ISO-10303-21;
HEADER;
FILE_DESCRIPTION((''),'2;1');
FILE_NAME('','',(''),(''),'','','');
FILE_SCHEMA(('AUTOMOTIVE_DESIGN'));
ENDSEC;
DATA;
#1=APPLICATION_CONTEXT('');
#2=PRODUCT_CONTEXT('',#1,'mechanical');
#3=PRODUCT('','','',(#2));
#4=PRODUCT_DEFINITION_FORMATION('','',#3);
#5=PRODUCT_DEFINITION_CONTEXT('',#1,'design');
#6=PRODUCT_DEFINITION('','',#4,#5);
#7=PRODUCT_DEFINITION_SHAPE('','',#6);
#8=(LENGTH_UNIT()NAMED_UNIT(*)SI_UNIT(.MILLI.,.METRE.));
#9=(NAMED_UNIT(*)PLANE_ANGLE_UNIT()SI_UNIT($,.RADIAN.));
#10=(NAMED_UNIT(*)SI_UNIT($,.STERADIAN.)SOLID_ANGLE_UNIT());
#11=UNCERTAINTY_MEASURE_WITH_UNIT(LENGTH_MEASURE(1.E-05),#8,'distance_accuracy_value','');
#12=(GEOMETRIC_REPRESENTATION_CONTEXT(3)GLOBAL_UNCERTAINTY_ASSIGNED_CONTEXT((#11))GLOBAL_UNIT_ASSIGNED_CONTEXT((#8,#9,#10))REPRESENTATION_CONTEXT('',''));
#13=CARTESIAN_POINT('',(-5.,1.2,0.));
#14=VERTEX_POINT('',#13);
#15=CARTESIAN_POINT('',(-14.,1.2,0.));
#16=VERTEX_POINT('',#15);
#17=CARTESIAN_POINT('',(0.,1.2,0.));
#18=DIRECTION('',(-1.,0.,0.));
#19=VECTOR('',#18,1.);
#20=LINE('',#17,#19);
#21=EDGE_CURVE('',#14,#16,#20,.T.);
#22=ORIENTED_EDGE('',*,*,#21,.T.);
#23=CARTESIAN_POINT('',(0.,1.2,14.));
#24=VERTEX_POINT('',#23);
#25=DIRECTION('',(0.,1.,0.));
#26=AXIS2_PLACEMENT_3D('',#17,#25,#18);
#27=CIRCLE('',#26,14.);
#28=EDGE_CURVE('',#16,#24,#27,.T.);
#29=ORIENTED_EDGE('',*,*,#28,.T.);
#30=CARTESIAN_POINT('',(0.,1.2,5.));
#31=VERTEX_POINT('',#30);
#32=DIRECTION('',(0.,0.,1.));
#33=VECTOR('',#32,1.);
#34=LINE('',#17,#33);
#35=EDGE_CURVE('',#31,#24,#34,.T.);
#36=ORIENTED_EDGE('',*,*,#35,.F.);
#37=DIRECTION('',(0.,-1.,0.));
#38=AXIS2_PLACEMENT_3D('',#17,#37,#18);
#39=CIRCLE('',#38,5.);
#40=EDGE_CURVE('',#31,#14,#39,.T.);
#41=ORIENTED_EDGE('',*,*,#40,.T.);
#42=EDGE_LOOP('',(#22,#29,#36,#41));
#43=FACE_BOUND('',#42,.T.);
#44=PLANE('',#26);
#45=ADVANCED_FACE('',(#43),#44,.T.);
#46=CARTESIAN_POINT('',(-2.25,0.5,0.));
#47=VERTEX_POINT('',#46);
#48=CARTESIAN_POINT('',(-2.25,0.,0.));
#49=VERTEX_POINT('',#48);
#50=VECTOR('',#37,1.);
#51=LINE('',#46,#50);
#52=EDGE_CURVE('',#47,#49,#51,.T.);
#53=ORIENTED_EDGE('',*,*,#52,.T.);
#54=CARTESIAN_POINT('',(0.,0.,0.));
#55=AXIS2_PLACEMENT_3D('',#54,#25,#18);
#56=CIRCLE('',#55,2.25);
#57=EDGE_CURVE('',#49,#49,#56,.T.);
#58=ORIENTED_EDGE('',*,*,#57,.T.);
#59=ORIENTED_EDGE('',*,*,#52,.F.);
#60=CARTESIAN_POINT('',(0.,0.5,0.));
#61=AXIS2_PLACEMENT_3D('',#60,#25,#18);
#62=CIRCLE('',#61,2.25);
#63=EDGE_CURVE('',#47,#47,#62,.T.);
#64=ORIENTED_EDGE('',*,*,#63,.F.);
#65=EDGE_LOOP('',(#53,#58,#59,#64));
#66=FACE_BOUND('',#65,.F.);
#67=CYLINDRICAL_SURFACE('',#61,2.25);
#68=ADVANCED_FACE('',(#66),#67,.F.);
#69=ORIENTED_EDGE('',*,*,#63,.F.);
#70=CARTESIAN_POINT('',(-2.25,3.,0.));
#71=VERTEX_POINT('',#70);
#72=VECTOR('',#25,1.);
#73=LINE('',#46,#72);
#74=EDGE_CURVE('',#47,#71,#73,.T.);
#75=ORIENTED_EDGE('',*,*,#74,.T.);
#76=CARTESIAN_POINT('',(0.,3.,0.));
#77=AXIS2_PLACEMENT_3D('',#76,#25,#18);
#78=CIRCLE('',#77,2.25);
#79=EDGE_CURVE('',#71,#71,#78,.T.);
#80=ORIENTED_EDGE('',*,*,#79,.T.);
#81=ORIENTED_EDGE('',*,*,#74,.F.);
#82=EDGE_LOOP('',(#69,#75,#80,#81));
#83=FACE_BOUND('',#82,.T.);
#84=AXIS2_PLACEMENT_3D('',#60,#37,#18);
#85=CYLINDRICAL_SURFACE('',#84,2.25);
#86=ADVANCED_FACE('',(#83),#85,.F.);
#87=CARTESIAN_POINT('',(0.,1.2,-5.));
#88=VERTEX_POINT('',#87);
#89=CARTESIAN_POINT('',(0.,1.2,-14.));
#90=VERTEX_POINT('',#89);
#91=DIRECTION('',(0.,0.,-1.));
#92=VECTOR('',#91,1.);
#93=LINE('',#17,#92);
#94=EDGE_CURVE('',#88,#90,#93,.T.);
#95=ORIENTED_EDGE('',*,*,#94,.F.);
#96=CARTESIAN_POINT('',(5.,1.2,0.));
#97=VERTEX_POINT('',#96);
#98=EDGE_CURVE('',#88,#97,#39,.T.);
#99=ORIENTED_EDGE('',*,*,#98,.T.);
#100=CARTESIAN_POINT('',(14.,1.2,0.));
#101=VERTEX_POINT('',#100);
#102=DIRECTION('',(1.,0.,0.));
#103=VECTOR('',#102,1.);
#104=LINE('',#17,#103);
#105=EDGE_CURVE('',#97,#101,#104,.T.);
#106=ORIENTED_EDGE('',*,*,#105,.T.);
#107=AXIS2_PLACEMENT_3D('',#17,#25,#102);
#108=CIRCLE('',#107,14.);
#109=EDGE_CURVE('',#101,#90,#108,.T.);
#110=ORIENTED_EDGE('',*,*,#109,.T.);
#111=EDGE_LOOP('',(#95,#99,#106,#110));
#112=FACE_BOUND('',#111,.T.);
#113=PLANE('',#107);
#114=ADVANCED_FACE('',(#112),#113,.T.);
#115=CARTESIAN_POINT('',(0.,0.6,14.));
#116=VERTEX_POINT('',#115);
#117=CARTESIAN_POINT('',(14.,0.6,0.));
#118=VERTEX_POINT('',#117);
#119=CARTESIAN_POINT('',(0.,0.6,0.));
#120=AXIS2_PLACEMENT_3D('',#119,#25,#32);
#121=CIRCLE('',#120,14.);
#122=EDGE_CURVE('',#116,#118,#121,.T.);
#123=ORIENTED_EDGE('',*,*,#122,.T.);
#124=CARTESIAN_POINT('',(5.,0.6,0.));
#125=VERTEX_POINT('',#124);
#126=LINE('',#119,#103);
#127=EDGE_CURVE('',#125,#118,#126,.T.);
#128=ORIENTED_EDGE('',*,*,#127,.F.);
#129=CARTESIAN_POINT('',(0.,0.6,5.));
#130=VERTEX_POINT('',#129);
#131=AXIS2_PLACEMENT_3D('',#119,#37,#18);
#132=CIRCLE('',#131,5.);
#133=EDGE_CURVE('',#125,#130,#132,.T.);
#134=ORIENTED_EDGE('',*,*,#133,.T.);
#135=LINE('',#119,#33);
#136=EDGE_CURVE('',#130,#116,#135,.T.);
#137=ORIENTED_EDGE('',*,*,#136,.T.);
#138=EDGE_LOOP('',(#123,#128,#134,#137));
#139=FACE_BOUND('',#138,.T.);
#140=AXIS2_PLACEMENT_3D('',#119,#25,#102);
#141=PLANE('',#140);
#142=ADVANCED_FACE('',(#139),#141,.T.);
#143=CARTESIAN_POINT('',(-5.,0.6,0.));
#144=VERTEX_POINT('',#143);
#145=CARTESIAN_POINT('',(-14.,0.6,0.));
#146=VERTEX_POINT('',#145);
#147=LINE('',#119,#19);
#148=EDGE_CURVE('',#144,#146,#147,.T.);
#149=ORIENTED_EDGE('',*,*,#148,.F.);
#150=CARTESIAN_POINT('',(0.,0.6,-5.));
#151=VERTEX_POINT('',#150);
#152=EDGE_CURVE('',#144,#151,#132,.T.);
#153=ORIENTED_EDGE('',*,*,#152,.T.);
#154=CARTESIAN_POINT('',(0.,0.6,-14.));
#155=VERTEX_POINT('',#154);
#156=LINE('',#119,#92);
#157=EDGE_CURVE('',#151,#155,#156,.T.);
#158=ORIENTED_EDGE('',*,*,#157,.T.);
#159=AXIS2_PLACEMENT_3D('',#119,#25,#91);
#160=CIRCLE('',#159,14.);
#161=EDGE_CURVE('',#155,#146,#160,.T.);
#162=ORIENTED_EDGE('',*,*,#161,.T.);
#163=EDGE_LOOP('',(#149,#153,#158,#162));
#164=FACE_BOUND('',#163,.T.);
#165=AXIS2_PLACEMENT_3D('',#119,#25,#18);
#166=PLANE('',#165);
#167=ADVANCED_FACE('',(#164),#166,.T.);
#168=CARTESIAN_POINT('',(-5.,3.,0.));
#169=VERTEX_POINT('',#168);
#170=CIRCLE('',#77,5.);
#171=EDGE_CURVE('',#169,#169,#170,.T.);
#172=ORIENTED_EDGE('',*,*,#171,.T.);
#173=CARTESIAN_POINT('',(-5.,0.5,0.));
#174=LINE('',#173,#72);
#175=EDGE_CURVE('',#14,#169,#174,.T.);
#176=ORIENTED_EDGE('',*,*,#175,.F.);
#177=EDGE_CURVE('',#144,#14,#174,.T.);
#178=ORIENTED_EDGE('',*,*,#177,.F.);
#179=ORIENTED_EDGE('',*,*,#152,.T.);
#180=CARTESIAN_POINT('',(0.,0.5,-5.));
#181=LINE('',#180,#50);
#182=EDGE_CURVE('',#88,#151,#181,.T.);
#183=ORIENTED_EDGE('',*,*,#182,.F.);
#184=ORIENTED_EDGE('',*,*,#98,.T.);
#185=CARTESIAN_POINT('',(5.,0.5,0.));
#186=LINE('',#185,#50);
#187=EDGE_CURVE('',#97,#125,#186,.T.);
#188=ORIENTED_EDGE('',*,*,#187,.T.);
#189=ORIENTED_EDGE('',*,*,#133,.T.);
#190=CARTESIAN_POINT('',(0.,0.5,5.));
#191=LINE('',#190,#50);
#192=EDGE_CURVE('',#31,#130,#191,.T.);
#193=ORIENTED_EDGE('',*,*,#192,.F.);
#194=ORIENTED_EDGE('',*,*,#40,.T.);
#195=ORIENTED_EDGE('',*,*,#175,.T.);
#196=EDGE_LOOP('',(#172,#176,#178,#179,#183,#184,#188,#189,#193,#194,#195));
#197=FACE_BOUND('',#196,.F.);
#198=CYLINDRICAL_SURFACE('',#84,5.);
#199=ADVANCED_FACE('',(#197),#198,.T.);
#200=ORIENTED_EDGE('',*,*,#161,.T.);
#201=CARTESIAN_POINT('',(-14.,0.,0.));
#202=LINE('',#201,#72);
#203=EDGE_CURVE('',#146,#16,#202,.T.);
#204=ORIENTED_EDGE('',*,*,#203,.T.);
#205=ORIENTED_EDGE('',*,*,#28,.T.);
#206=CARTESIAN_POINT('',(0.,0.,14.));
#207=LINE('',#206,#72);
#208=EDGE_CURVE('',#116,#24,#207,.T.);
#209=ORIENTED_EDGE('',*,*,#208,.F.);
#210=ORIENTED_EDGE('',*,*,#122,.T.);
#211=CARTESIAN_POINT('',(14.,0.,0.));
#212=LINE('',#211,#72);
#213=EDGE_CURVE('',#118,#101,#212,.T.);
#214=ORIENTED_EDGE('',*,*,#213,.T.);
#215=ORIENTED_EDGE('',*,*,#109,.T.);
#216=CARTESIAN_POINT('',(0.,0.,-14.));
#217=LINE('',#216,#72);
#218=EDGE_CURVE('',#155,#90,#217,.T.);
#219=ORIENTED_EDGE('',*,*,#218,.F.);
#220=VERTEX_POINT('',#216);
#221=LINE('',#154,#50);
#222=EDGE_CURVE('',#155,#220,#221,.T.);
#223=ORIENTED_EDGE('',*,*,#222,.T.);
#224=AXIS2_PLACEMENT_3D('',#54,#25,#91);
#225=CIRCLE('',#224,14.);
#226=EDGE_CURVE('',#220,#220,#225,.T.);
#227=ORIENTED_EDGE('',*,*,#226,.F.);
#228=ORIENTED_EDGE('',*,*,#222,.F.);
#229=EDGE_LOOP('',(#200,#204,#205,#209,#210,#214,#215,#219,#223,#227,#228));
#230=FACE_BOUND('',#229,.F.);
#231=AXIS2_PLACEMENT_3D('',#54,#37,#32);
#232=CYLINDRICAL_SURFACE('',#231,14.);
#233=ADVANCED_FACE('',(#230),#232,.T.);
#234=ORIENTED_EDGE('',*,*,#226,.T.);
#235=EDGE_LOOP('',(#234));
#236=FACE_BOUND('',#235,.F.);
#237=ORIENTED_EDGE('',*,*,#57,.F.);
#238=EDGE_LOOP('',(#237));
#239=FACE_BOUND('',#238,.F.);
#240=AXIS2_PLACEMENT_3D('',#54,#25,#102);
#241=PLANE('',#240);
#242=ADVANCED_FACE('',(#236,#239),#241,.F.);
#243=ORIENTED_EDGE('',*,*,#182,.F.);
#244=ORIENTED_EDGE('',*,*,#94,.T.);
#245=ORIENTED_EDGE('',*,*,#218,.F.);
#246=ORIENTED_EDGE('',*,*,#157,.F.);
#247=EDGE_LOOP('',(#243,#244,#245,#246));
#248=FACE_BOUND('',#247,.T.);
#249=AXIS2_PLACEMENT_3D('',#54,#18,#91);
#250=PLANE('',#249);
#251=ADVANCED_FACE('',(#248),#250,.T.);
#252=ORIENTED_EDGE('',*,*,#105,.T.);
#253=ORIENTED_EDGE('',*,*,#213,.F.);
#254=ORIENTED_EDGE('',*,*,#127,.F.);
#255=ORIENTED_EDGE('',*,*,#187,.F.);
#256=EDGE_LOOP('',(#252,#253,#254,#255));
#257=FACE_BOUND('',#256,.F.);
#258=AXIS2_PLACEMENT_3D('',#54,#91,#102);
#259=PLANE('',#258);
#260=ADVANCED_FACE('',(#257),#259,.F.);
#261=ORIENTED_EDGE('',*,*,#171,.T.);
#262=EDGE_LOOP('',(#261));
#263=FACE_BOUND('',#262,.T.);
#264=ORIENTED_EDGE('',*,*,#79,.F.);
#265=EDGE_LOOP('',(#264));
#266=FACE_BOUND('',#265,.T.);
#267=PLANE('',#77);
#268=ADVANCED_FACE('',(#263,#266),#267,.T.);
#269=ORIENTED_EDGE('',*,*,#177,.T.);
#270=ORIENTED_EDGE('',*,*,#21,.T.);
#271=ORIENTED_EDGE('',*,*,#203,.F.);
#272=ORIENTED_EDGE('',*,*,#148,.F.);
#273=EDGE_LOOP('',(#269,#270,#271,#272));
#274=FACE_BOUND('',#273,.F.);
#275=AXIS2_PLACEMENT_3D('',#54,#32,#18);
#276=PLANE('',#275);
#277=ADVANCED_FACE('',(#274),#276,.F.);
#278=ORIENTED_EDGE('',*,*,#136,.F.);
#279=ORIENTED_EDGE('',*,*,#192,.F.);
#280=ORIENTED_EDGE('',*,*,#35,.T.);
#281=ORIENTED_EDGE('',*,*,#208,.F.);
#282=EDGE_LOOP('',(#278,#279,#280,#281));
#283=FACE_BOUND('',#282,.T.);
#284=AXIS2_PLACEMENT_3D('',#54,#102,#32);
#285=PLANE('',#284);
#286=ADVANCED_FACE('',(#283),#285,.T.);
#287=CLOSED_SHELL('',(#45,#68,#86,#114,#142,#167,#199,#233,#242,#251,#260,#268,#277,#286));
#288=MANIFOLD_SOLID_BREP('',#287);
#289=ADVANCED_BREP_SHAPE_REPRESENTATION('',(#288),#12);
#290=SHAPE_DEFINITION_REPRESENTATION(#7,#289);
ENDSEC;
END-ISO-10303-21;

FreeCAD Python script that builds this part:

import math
import FreeCAD as App
import Part
import Sketcher
Q = App.Units.Quantity

doc = App.newDocument("Part")
params = doc.addObject("Spreadsheet::Sheet", "Params")
for row, (alias, value) in enumerate([
    ("sketch1_diameter", "28 mm"),
    ("pad1_length", "0.5 mm"),
    ("sketch2_radius", "14 mm"),
    ("pad2_length", "1.2 mm"),
    ("sketch3_radius", "14 mm"),
    ("pad3_length", "0.6 mm"),
    ("sketch4_diameter", "10 mm"),
    ("pocket1_length", "2 mm"),
    ("sketch5_diameter", "4.5 mm"),
    ("pocket2_length", "5 mm"),
    ("sketch6_diameter", "10 mm"),
    ("sketch6_diameter2", "4.5 mm"),
    ("pad4_length", "2.5 mm"),
], start=1):
    params.set(f"A{row}", alias)
    params.set(f"B{row}", "=" + value)
    params.setAlias(f"B{row}", alias)

body = doc.addObject("PartDesign::Body", "Body")

# Sketch on XZ plane
sketch1 = body.newObject("Sketcher::SketchObject", "Sketch")
sketch1.AttachmentSupport = (doc.getObject("XZ_Plane"), [""])
sketch1.MapMode = "FlatFace"
sketch1.addGeometry(Part.Circle(App.Vector(0, 0, 0), App.Vector(0, 0, 1), 14), False)
sketch1.addConstraint([
    Sketcher.Constraint("Coincident", 0, 3, -1, 1),
    Sketcher.Constraint("Diameter", 0, Q("28 mm")),
])
sketch1.setExpression("Constraints[1]", "Params.sketch1_diameter")
pad1 = body.newObject("PartDesign::Pad", "Pad")
pad1.Profile = sketch1
pad1.setExpression("Length", "Params.pad1_length")
pad1.Reversed = True

# Sketch on XZ plane
sketch2 = body.newObject("Sketcher::SketchObject", "Sketch001")
sketch2.AttachmentSupport = (doc.getObject("XZ_Plane"), [""])
sketch2.MapMode = "FlatFace"
sketch2.addGeometry([
    Part.ArcOfCircle(Part.Circle(App.Vector(0, 0, 0), App.Vector(0, 0, 1), 14), math.radians(90), math.radians(180)),
    Part.LineSegment(App.Vector(0, 14, 0), App.Vector(0, 0, 0)),
    Part.LineSegment(App.Vector(0, 0, 0), App.Vector(-14, 0, 0)),
], False)
sketch2.addConstraint([
    Sketcher.Constraint("Coincident", 0, 1, 1, 1),
    Sketcher.Constraint("Coincident", 1, 2, 2, 1),
    Sketcher.Constraint("Coincident", 2, 2, 0, 2),
    Sketcher.Constraint("Vertical", 1),
    Sketcher.Constraint("Horizontal", 2),
    Sketcher.Constraint("Coincident", 0, 3, -1, 1),
    Sketcher.Constraint("Coincident", 1, 2, -1, 1),
    Sketcher.Constraint("Radius", 0, Q("14 mm")),
])
sketch2.setExpression("Constraints[7]", "Params.sketch2_radius")
pad2 = body.newObject("PartDesign::Pad", "Pad001")
pad2.Profile = sketch2
pad2.setExpression("Length", "Params.pad2_length")
pad2.Reversed = True

# Sketch on XZ plane
sketch3 = body.newObject("Sketcher::SketchObject", "Sketch002")
sketch3.AttachmentSupport = (doc.getObject("XZ_Plane"), [""])
sketch3.MapMode = "FlatFace"
sketch3.addGeometry([
    Part.LineSegment(App.Vector(0, 0, 0), App.Vector(0, -14, 0)),
    Part.ArcOfCircle(Part.Circle(App.Vector(0, 0, 0), App.Vector(0, 0, 1), 14), math.radians(180), math.radians(270)),
    Part.LineSegment(App.Vector(-14, 0, 0), App.Vector(0, 0, 0)),
], False)
sketch3.addConstraint([
    Sketcher.Constraint("Coincident", 0, 2, 1, 2),
    Sketcher.Constraint("Coincident", 1, 1, 2, 1),
    Sketcher.Constraint("Coincident", 2, 2, 0, 1),
    Sketcher.Constraint("Vertical", 0),
    Sketcher.Constraint("Horizontal", 2),
    Sketcher.Constraint("Coincident", 1, 3, -1, 1),
    Sketcher.Constraint("Coincident", 2, 2, -1, 1),
    Sketcher.Constraint("Radius", 1, Q("14 mm")),
])
sketch3.setExpression("Constraints[7]", "Params.sketch3_radius")
pad3 = body.newObject("PartDesign::Pad", "Pad002")
pad3.Profile = sketch3
pad3.setExpression("Length", "Params.pad3_length")
pad3.Reversed = True
doc.recompute()

polarpattern = body.newObject("PartDesign::PolarPattern", "PolarPattern")
polarpattern.Originals = [pad2, pad3]
polarpattern.Axis = (doc.getObject("Y_Axis"), [""])
polarpattern.Angle = 360
polarpattern.Occurrences = 2
body.Tip = polarpattern

# Sketch on XZ plane
sketch4 = body.newObject("Sketcher::SketchObject", "Sketch003")
sketch4.AttachmentSupport = (doc.getObject("XZ_Plane"), [""])
sketch4.MapMode = "FlatFace"
sketch4.AttachmentOffset = App.Placement(App.Vector(0, 0, -0.5), App.Rotation())
sketch4.addGeometry(Part.Circle(App.Vector(0, 0, 0), App.Vector(0, 0, 1), 5), False)
sketch4.addConstraint([
    Sketcher.Constraint("Coincident", 0, 3, -1, 1),
    Sketcher.Constraint("Diameter", 0, Q("10 mm")),
])
sketch4.setExpression("Constraints[1]", "Params.sketch4_diameter")
pocket1 = body.newObject("PartDesign::Pocket", "Pocket")
pocket1.Profile = sketch4
pocket1.setExpression("Length", "Params.pocket1_length")

# Sketch on XZ plane
sketch5 = body.newObject("Sketcher::SketchObject", "Sketch004")
sketch5.AttachmentSupport = (doc.getObject("XZ_Plane"), [""])
sketch5.MapMode = "FlatFace"
sketch5.AttachmentOffset = App.Placement(App.Vector(0, 0, -0.5), App.Rotation())
sketch5.addGeometry(Part.Circle(App.Vector(0, 0, 0), App.Vector(0, 0, 1), 2.2), False)
sketch5.addConstraint([
    Sketcher.Constraint("Coincident", 0, 3, -1, 1),
    Sketcher.Constraint("Diameter", 0, Q("4.5 mm")),
])
sketch5.setExpression("Constraints[1]", "Params.sketch5_diameter")
pocket2 = body.newObject("PartDesign::Pocket", "Pocket001")
pocket2.Profile = sketch5
pocket2.setExpression("Length", "Params.pocket2_length")
pocket2.Midplane = True

# Sketch on XZ plane
sketch6 = body.newObject("Sketcher::SketchObject", "Sketch005")
sketch6.AttachmentSupport = (doc.getObject("XZ_Plane"), [""])
sketch6.MapMode = "FlatFace"
sketch6.AttachmentOffset = App.Placement(App.Vector(0, 0, -0.5), App.Rotation())
sketch6.addGeometry([
    Part.Circle(App.Vector(0, 0, 0), App.Vector(0, 0, 1), 5),
    Part.Circle(App.Vector(0, 0, 0), App.Vector(0, 0, 1), 2.2),
], False)
sketch6.addConstraint([
    Sketcher.Constraint("Coincident", 0, 3, -1, 1),
    Sketcher.Constraint("Coincident", 1, 3, -1, 1),
    Sketcher.Constraint("Diameter", 0, Q("10 mm")),
    Sketcher.Constraint("Diameter", 1, Q("4.5 mm")),
])
sketch6.setExpression("Constraints[2]", "Params.sketch6_diameter")
sketch6.setExpression("Constraints[3]", "Params.sketch6_diameter2")
pad4 = body.newObject("PartDesign::Pad", "Pad003")
pad4.Profile = sketch6
pad4.setExpression("Length", "Params.pad4_length")
pad4.Reversed = True

doc.recompute()
